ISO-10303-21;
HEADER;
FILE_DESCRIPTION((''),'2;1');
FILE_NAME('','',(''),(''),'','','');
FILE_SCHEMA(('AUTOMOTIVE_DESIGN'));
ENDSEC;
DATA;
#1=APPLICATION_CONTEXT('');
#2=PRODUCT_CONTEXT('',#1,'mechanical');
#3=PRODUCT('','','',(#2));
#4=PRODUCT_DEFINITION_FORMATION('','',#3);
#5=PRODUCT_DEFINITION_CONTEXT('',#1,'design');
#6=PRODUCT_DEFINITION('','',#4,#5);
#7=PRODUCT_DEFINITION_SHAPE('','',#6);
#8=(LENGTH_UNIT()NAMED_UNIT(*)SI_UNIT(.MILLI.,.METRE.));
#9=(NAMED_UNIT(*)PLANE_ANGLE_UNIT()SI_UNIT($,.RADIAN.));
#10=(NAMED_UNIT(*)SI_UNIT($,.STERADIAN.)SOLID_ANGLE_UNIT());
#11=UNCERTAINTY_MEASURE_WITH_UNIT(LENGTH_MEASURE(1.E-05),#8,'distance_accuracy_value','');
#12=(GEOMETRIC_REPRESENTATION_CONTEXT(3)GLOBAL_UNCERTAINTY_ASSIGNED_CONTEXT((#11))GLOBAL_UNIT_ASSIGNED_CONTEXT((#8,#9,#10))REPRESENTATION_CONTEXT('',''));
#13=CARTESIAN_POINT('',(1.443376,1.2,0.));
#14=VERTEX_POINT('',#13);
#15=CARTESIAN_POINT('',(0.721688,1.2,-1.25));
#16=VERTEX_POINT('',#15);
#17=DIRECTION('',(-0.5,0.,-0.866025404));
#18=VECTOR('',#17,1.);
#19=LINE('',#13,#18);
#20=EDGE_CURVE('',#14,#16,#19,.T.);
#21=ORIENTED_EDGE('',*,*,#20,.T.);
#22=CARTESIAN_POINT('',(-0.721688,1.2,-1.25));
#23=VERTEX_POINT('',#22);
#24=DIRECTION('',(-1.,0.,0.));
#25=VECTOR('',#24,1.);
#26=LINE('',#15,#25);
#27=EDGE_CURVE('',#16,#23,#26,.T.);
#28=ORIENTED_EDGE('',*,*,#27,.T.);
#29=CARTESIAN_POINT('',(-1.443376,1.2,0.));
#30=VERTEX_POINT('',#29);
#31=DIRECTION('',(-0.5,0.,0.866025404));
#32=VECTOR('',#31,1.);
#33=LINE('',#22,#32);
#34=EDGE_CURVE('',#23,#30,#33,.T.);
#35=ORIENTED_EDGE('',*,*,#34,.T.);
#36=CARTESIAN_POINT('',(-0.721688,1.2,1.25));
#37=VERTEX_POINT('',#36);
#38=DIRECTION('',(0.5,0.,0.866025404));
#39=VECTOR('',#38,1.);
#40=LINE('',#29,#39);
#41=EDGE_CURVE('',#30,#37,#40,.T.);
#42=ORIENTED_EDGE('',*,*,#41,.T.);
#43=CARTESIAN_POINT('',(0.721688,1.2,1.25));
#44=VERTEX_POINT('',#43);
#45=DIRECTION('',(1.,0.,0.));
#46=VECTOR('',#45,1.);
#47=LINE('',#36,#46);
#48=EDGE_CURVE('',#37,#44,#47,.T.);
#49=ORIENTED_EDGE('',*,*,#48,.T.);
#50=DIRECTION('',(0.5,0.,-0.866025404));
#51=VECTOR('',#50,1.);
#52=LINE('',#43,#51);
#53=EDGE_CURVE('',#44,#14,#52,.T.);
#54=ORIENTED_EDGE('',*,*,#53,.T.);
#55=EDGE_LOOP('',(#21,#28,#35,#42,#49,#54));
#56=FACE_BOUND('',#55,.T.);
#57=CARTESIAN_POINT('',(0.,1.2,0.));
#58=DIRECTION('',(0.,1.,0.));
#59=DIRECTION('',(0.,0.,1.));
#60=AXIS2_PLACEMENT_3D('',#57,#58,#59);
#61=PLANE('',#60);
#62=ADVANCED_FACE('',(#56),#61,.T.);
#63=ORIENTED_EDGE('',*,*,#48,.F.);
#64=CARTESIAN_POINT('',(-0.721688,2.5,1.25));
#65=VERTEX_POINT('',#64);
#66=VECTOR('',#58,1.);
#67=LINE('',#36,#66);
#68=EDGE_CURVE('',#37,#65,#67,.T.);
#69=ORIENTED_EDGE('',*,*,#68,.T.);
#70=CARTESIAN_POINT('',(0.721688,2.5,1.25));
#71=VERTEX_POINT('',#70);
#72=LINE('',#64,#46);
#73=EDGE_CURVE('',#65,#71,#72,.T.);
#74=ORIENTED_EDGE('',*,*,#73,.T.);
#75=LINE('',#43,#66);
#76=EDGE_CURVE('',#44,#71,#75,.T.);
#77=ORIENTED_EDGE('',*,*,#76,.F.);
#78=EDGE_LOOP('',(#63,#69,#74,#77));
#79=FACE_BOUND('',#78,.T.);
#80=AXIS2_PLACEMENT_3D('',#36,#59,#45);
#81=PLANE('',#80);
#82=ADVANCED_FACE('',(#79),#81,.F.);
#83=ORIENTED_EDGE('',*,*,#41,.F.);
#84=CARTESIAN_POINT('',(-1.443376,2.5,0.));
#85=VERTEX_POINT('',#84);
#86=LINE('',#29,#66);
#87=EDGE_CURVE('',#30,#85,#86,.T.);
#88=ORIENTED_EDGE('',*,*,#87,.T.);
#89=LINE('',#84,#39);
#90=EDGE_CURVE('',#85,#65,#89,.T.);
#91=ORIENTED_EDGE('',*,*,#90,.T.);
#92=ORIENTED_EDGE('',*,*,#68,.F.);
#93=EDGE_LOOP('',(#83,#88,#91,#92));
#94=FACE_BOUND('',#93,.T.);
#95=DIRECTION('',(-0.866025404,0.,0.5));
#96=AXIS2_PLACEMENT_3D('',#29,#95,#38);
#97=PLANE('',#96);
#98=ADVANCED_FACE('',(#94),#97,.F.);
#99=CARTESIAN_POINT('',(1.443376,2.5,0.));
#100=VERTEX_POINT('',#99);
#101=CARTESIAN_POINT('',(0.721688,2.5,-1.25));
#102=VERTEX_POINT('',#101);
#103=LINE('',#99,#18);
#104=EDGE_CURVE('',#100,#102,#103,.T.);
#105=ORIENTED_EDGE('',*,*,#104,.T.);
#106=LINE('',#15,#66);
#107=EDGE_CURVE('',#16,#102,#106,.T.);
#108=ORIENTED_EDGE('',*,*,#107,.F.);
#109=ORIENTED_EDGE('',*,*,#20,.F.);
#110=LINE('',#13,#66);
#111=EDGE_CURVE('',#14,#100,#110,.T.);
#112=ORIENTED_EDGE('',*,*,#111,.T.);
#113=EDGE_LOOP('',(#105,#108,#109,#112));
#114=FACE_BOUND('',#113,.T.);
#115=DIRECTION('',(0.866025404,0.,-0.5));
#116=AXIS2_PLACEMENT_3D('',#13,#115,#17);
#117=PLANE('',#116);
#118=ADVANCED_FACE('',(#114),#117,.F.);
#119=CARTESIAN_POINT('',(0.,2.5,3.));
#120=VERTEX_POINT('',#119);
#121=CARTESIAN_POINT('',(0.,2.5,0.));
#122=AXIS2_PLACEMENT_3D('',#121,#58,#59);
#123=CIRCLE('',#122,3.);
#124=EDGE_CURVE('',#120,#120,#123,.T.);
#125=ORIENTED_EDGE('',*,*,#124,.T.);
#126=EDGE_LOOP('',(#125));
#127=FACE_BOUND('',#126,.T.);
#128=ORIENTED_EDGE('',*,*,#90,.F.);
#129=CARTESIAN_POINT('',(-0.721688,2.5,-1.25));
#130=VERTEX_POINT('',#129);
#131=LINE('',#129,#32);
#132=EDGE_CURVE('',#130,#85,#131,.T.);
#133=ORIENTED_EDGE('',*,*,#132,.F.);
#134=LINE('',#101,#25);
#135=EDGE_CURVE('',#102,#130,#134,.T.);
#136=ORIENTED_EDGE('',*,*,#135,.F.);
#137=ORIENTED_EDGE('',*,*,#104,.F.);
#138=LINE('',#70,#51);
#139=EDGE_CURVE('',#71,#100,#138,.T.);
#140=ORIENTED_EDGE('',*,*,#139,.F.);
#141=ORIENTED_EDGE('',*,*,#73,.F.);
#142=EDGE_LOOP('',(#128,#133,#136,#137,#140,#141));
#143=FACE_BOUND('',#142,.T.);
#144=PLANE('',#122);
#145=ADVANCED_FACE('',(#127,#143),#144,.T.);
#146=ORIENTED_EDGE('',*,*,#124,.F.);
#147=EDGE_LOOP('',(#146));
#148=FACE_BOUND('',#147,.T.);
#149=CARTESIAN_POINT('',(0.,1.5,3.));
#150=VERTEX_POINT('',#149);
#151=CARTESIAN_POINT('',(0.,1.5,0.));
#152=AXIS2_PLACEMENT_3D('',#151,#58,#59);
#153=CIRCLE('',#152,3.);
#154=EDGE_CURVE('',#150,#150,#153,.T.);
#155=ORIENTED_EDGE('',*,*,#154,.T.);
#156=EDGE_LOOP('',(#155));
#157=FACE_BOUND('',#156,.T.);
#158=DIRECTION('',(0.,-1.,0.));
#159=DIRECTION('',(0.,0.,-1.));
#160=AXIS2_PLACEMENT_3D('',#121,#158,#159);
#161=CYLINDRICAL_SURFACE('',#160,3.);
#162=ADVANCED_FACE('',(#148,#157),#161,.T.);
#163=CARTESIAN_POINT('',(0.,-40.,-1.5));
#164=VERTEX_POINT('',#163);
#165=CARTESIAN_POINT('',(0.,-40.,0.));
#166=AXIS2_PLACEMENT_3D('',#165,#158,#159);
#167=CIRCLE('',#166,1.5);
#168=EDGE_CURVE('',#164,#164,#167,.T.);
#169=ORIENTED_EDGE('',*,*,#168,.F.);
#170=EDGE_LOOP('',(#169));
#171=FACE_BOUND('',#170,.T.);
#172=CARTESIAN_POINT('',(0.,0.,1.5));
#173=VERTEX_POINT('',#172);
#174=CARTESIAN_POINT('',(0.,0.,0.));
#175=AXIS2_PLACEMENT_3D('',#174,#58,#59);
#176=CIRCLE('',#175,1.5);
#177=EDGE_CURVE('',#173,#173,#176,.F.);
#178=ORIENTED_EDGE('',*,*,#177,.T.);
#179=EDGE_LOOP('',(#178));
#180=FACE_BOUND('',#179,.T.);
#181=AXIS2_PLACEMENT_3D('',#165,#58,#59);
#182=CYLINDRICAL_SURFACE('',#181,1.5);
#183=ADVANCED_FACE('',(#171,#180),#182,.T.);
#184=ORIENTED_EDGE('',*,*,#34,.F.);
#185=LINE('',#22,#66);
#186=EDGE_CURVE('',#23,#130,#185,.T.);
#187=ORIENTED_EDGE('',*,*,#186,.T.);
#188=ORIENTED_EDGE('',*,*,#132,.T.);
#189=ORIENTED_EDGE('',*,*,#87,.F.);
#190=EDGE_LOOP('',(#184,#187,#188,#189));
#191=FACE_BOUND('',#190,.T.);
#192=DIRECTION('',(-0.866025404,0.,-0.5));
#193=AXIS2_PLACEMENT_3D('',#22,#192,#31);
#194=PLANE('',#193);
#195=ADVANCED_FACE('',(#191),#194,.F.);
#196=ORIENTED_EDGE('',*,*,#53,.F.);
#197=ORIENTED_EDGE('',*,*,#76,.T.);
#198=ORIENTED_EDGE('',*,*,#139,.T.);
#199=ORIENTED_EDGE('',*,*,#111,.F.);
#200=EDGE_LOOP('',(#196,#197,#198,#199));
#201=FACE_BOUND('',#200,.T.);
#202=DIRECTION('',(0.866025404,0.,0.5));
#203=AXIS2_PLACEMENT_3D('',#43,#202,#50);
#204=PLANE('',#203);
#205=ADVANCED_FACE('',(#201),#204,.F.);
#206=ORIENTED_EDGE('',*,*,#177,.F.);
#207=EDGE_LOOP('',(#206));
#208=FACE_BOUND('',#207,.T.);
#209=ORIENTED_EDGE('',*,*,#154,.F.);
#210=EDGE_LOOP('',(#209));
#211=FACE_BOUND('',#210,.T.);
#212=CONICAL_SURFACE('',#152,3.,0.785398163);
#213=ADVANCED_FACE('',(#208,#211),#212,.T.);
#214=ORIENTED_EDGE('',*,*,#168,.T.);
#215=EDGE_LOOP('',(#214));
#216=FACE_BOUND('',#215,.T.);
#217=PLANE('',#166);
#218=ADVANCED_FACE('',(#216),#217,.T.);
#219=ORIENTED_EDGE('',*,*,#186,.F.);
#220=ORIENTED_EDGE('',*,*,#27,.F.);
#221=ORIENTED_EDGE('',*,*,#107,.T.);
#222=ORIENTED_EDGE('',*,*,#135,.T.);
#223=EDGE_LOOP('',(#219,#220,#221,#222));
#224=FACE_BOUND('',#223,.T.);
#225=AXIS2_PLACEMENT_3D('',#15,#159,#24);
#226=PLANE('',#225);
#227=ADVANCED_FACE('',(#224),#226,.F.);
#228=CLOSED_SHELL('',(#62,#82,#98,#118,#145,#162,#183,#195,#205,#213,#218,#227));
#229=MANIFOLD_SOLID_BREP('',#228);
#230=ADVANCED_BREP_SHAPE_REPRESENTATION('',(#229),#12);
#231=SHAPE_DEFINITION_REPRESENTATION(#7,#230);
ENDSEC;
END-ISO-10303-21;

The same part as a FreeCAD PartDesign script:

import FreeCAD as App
import Part
import Sketcher
Q = App.Units.Quantity


def edges_at(feature, points):
    """Names of the edges that pass closest to the given points."""
    edges = feature.Shape.Edges
    near = lambda p: min(range(len(edges)), key=lambda i: edges[i].distToShape(Part.Vertex(*p))[0])
    return sorted({f"Edge{near(p) + 1}" for p in points})

doc = App.newDocument("Part")
params = doc.addObject("Spreadsheet::Sheet", "Params")
for row, (alias, value) in enumerate([
    ("sketch1_diameter", "6 mm"),
    ("pad1_length", "2.5 mm"),
    ("chamfer_size", "1.5 mm"),
    ("pocket1_length", "1.3 mm"),
    ("sketch3_diameter", "3 mm"),
    ("pad2_length", "40 mm"),
], start=1):
    params.set(f"A{row}", alias)
    params.set(f"B{row}", "=" + value)
    params.setAlias(f"B{row}", alias)

body = doc.addObject("PartDesign::Body", "Body")

sketch1 = body.newObject("Sketcher::SketchObject", "Sketch")
sketch1.AttachmentSupport = (doc.getObject("XZ_Plane"), [""])
sketch1.MapMode = "FlatFace"
sketch1.addGeometry(Part.Circle(App.Vector(0, 0, 0), App.Vector(0, 0, 1), 3), False)
sketch1.addConstraint([
    Sketcher.Constraint("Coincident", 0, 3, -1, 1),
    Sketcher.Constraint("Diameter", 0, 6.0),
])
sketch1.setExpression("Constraints[1]", "Params.sketch1_diameter")
pad1 = body.newObject("PartDesign::Pad", "Pad")
pad1.Profile = sketch1
pad1.setExpression("Length", "Params.pad1_length")
pad1.Reversed = True
doc.recompute()

chamfer = body.newObject("PartDesign::Chamfer", "Chamfer")
chamfer.Base = (pad1, edges_at(pad1, [(-3, 0, 0)]))
chamfer.setExpression("Size", "Params.chamfer_size")

sketch2 = body.newObject("Sketcher::SketchObject", "Sketch001")
sketch2.AttachmentSupport = (doc.getObject("XZ_Plane"), [""])
sketch2.MapMode = "FlatFace"
sketch2.AttachmentOffset = App.Placement(App.Vector(0, 0, -2.5), App.Rotation())
sketch2.addGeometry([
    Part.LineSegment(App.Vector(1.4, 0, 0), App.Vector(0.7, -1.2, 0)),
    Part.LineSegment(App.Vector(0.7, -1.2, 0), App.Vector(-0.7, -1.2, 0)),
    Part.LineSegment(App.Vector(-0.7, -1.2, 0), App.Vector(-1.4, 0, 0)),
    Part.LineSegment(App.Vector(-1.4, 0, 0), App.Vector(-0.7, 1.2, 0)),
    Part.LineSegment(App.Vector(-0.7, 1.2, 0), App.Vector(0.7, 1.2, 0)),
    Part.LineSegment(App.Vector(0.7, 1.2, 0), App.Vector(1.4, 0, 0)),
], False)
sketch2.addConstraint([
    Sketcher.Constraint("Coincident", 0, 2, 1, 1),
    Sketcher.Constraint("Coincident", 1, 2, 2, 1),
    Sketcher.Constraint("Coincident", 2, 2, 3, 1),
    Sketcher.Constraint("Coincident", 3, 2, 4, 1),
    Sketcher.Constraint("Coincident", 4, 2, 5, 1),
    Sketcher.Constraint("Coincident", 5, 2, 0, 1),
    Sketcher.Constraint("Horizontal", 1),
    Sketcher.Constraint("Horizontal", 4),
    Sketcher.Constraint("Symmetric", 0, 2, 3, 2, -1, 1),
    Sketcher.Constraint("Symmetric", 2, 2, 5, 2, -1, 1),
    Sketcher.Constraint("PointOnObject", 2, 2, -1),
    Sketcher.Constraint("Parallel", 2, 5),
    Sketcher.Constraint("Vertical", 1, 2, 3, 2),
    Sketcher.Constraint("Angle", 0, Q("-120 deg")),
    Sketcher.Constraint("DistanceY", 1, 2, 3, 2, 2.5),
    Sketcher.Constraint("DistanceX", 1, 2, 1, 1, 1.443376),
])
pocket1 = body.newObject("PartDesign::Pocket", "Pocket")
pocket1.Profile = sketch2
pocket1.setExpression("Length", "Params.pocket1_length")
pocket1.Reversed = True

sketch3 = body.newObject("Sketcher::SketchObject", "Sketch002")
sketch3.AttachmentSupport = (doc.getObject("XZ_Plane"), [""])
sketch3.MapMode = "FlatFace"
sketch3.addGeometry(Part.Circle(App.Vector(0, 0, 0), App.Vector(0, 0, 1), 1.5), False)
sketch3.addConstraint([
    Sketcher.Constraint("Coincident", 0, 3, -1, 1),
    Sketcher.Constraint("Diameter", 0, 3.0),
])
sketch3.setExpression("Constraints[1]", "Params.sketch3_diameter")
pad2 = body.newObject("PartDesign::Pad", "Pad001")
pad2.Profile = sketch3
pad2.setExpression("Length", "Params.pad2_length")

doc.recompute()
